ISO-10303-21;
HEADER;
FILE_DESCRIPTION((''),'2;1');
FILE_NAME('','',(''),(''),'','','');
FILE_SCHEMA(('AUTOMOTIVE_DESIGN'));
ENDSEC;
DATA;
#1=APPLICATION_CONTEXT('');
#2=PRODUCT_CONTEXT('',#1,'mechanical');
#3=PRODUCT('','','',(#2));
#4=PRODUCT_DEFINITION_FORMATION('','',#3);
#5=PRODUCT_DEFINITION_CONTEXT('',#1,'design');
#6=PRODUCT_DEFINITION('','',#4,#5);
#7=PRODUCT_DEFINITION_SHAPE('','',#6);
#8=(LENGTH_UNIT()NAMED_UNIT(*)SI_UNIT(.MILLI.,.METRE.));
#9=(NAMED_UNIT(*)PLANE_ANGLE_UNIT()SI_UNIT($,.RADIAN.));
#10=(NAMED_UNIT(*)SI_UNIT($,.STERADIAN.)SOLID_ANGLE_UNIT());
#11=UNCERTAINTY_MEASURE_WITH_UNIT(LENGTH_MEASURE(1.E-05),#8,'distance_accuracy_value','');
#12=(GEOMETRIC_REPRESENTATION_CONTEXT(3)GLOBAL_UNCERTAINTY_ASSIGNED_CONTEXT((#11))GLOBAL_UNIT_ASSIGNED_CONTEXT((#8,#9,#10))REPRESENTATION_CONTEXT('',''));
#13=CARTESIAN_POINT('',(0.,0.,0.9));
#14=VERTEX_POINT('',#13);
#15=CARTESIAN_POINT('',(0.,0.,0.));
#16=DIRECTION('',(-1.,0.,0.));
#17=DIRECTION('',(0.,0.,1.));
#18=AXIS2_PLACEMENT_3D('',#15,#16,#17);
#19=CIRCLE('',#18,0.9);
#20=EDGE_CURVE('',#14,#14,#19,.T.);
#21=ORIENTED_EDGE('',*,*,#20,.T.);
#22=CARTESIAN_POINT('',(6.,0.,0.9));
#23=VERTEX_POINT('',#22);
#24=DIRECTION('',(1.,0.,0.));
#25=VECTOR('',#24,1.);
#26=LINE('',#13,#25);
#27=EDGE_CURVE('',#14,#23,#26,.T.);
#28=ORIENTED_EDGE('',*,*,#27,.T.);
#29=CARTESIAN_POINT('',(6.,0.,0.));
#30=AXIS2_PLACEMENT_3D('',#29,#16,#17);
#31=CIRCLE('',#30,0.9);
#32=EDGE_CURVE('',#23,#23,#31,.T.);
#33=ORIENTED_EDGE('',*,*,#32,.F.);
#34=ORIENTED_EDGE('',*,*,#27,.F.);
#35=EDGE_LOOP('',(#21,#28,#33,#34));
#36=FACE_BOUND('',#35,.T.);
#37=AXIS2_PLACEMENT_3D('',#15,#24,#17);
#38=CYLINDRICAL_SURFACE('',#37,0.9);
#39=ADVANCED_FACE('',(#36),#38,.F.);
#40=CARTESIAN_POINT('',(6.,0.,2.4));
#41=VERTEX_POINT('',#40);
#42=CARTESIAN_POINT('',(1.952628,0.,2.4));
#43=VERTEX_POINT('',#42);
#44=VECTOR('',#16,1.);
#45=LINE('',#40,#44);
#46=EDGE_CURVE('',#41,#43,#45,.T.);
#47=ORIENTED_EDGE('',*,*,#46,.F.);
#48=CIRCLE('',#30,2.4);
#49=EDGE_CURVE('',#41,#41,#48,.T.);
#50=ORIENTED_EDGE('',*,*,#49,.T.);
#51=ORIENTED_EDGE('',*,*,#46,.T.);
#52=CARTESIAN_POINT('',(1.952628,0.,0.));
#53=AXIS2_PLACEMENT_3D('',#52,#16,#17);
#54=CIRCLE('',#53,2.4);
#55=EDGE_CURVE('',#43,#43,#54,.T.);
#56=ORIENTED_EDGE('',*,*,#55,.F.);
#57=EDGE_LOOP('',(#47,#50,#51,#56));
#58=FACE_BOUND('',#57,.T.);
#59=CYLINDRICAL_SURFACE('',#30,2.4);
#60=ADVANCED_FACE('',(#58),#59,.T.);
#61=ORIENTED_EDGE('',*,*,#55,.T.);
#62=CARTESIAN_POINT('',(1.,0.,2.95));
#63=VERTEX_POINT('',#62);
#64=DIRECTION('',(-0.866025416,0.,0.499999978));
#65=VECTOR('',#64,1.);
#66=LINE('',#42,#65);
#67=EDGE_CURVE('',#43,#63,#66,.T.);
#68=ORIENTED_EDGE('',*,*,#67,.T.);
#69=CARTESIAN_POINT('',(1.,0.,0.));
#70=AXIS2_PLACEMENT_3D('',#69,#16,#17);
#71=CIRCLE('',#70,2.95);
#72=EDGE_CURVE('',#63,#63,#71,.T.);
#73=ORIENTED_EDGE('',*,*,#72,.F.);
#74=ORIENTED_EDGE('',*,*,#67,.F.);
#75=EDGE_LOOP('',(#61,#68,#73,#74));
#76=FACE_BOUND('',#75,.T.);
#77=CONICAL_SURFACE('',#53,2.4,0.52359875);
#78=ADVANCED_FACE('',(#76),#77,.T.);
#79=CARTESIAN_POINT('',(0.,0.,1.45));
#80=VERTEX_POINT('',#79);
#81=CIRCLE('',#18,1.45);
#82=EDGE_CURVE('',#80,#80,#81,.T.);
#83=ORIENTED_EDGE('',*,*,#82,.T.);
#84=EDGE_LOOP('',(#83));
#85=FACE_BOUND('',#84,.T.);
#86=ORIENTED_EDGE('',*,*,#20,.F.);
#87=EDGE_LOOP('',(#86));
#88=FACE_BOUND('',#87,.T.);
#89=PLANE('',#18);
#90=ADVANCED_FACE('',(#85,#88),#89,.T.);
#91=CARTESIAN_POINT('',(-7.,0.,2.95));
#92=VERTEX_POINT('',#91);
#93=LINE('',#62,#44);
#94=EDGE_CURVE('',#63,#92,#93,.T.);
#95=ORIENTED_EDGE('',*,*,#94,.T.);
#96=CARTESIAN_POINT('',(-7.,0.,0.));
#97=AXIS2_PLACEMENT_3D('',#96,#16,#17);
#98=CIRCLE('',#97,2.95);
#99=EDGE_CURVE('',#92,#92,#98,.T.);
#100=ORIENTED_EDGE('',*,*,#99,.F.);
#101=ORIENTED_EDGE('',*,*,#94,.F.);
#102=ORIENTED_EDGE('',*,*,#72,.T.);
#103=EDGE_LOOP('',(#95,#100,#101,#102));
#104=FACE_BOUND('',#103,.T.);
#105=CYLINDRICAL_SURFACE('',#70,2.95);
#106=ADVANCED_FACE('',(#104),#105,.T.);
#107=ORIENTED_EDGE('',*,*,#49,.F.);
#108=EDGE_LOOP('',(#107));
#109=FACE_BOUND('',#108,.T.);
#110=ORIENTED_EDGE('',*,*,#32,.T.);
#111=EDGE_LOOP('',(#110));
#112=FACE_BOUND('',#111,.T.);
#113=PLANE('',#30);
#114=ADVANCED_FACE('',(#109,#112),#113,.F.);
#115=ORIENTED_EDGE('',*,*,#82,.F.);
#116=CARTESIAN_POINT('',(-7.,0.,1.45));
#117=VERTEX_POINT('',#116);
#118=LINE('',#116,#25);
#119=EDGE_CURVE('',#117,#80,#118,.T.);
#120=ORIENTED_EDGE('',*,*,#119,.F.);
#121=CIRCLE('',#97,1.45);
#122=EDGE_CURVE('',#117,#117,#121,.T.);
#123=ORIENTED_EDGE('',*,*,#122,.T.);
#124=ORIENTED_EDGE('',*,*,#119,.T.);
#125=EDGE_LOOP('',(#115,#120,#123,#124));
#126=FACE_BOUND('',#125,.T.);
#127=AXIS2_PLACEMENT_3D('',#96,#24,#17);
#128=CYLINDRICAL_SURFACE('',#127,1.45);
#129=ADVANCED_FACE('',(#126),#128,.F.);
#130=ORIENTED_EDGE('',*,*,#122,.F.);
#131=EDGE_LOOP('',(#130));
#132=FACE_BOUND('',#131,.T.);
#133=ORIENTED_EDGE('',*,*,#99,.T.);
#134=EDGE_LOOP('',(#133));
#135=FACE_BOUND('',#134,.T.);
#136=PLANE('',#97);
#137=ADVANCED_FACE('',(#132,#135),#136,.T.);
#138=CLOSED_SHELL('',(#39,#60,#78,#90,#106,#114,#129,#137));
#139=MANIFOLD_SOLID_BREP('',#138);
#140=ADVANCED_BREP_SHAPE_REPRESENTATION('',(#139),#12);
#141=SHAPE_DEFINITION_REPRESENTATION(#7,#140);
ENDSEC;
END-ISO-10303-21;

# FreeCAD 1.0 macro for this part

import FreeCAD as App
import Part
import Sketcher
Q = App.Units.Quantity

doc = App.newDocument("Part")
body = doc.addObject("PartDesign::Body", "Body")

# Sketch on XZ plane
sketch1 = body.newObject("Sketcher::SketchObject", "Sketch")
sketch1.AttachmentSupport = (doc.getObject("XZ_Plane"), [""])
sketch1.MapMode = "FlatFace"
sketch1.addGeometry([
    Part.LineSegment(App.Vector(-7, 3, 0), App.Vector(-7, 1.4, 0)),  # 0
    Part.LineSegment(App.Vector(-7, 1.4, 0), App.Vector(0, 1.4, 0)),  # 1
    Part.LineSegment(App.Vector(0, 1.4, 0), App.Vector(0, 0.9, 0)),  # 2
    Part.LineSegment(App.Vector(0, 0.9, 0), App.Vector(6, 0.9, 0)),  # 3
    Part.LineSegment(App.Vector(6, 0.9, 0), App.Vector(6, 2.4, 0)),  # 4
    Part.LineSegment(App.Vector(6, 2.4, 0), App.Vector(2, 2.4, 0)),  # 5
    Part.LineSegment(App.Vector(2, 2.4, 0), App.Vector(1, 3, 0)),  # 6
    Part.LineSegment(App.Vector(1, 3, 0), App.Vector(-7, 3, 0)),  # 7
], False)
sketch1.addConstraint([
    Sketcher.Constraint("Coincident", 0, 2, 1, 1),
    Sketcher.Constraint("Coincident", 1, 2, 2, 1),
    Sketcher.Constraint("Coincident", 2, 2, 3, 1),
    Sketcher.Constraint("Coincident", 3, 2, 4, 1),
    Sketcher.Constraint("Coincident", 4, 2, 5, 1),
    Sketcher.Constraint("Coincident", 5, 2, 6, 1),
    Sketcher.Constraint("Coincident", 6, 2, 7, 1),
    Sketcher.Constraint("Coincident", 7, 2, 0, 1),
    Sketcher.Constraint("Vertical", 0),
    Sketcher.Constraint("Horizontal", 1),
    Sketcher.Constraint("Vertical", 2),
    Sketcher.Constraint("Horizontal", 3),
    Sketcher.Constraint("Vertical", 4),
    Sketcher.Constraint("Horizontal", 5),
    Sketcher.Constraint("Horizontal", 7),
    Sketcher.Constraint("PointOnObject", 1, 2, -2),
    Sketcher.Constraint("Equal", 0, 4),
    Sketcher.Constraint("DistanceX", 1, 1, 1, 2, Q("7 mm")),
    Sketcher.Constraint("DistanceX", 3, 1, 3, 2, Q("6 mm")),
    Sketcher.Constraint("DistanceX", 7, 2, 7, 1, Q("8 mm")),
    Sketcher.Constraint("Angle", 6, Q("150.000001 deg")),
    Sketcher.Constraint("DistanceY", 0, 2, 0, 1, Q("1.5 mm")),
    Sketcher.Constraint("Distance", 6, Q("1.1 mm")),
    Sketcher.Constraint("DistanceY", -1, 1, 2, 2, Q("0.9 mm")),
])
revolution = body.newObject("PartDesign::Revolution", "Revolution")
revolution.Profile = sketch1
revolution.ReferenceAxis = (sketch1, ["H_Axis"])
revolution.Angle = 360

doc.recompute()
